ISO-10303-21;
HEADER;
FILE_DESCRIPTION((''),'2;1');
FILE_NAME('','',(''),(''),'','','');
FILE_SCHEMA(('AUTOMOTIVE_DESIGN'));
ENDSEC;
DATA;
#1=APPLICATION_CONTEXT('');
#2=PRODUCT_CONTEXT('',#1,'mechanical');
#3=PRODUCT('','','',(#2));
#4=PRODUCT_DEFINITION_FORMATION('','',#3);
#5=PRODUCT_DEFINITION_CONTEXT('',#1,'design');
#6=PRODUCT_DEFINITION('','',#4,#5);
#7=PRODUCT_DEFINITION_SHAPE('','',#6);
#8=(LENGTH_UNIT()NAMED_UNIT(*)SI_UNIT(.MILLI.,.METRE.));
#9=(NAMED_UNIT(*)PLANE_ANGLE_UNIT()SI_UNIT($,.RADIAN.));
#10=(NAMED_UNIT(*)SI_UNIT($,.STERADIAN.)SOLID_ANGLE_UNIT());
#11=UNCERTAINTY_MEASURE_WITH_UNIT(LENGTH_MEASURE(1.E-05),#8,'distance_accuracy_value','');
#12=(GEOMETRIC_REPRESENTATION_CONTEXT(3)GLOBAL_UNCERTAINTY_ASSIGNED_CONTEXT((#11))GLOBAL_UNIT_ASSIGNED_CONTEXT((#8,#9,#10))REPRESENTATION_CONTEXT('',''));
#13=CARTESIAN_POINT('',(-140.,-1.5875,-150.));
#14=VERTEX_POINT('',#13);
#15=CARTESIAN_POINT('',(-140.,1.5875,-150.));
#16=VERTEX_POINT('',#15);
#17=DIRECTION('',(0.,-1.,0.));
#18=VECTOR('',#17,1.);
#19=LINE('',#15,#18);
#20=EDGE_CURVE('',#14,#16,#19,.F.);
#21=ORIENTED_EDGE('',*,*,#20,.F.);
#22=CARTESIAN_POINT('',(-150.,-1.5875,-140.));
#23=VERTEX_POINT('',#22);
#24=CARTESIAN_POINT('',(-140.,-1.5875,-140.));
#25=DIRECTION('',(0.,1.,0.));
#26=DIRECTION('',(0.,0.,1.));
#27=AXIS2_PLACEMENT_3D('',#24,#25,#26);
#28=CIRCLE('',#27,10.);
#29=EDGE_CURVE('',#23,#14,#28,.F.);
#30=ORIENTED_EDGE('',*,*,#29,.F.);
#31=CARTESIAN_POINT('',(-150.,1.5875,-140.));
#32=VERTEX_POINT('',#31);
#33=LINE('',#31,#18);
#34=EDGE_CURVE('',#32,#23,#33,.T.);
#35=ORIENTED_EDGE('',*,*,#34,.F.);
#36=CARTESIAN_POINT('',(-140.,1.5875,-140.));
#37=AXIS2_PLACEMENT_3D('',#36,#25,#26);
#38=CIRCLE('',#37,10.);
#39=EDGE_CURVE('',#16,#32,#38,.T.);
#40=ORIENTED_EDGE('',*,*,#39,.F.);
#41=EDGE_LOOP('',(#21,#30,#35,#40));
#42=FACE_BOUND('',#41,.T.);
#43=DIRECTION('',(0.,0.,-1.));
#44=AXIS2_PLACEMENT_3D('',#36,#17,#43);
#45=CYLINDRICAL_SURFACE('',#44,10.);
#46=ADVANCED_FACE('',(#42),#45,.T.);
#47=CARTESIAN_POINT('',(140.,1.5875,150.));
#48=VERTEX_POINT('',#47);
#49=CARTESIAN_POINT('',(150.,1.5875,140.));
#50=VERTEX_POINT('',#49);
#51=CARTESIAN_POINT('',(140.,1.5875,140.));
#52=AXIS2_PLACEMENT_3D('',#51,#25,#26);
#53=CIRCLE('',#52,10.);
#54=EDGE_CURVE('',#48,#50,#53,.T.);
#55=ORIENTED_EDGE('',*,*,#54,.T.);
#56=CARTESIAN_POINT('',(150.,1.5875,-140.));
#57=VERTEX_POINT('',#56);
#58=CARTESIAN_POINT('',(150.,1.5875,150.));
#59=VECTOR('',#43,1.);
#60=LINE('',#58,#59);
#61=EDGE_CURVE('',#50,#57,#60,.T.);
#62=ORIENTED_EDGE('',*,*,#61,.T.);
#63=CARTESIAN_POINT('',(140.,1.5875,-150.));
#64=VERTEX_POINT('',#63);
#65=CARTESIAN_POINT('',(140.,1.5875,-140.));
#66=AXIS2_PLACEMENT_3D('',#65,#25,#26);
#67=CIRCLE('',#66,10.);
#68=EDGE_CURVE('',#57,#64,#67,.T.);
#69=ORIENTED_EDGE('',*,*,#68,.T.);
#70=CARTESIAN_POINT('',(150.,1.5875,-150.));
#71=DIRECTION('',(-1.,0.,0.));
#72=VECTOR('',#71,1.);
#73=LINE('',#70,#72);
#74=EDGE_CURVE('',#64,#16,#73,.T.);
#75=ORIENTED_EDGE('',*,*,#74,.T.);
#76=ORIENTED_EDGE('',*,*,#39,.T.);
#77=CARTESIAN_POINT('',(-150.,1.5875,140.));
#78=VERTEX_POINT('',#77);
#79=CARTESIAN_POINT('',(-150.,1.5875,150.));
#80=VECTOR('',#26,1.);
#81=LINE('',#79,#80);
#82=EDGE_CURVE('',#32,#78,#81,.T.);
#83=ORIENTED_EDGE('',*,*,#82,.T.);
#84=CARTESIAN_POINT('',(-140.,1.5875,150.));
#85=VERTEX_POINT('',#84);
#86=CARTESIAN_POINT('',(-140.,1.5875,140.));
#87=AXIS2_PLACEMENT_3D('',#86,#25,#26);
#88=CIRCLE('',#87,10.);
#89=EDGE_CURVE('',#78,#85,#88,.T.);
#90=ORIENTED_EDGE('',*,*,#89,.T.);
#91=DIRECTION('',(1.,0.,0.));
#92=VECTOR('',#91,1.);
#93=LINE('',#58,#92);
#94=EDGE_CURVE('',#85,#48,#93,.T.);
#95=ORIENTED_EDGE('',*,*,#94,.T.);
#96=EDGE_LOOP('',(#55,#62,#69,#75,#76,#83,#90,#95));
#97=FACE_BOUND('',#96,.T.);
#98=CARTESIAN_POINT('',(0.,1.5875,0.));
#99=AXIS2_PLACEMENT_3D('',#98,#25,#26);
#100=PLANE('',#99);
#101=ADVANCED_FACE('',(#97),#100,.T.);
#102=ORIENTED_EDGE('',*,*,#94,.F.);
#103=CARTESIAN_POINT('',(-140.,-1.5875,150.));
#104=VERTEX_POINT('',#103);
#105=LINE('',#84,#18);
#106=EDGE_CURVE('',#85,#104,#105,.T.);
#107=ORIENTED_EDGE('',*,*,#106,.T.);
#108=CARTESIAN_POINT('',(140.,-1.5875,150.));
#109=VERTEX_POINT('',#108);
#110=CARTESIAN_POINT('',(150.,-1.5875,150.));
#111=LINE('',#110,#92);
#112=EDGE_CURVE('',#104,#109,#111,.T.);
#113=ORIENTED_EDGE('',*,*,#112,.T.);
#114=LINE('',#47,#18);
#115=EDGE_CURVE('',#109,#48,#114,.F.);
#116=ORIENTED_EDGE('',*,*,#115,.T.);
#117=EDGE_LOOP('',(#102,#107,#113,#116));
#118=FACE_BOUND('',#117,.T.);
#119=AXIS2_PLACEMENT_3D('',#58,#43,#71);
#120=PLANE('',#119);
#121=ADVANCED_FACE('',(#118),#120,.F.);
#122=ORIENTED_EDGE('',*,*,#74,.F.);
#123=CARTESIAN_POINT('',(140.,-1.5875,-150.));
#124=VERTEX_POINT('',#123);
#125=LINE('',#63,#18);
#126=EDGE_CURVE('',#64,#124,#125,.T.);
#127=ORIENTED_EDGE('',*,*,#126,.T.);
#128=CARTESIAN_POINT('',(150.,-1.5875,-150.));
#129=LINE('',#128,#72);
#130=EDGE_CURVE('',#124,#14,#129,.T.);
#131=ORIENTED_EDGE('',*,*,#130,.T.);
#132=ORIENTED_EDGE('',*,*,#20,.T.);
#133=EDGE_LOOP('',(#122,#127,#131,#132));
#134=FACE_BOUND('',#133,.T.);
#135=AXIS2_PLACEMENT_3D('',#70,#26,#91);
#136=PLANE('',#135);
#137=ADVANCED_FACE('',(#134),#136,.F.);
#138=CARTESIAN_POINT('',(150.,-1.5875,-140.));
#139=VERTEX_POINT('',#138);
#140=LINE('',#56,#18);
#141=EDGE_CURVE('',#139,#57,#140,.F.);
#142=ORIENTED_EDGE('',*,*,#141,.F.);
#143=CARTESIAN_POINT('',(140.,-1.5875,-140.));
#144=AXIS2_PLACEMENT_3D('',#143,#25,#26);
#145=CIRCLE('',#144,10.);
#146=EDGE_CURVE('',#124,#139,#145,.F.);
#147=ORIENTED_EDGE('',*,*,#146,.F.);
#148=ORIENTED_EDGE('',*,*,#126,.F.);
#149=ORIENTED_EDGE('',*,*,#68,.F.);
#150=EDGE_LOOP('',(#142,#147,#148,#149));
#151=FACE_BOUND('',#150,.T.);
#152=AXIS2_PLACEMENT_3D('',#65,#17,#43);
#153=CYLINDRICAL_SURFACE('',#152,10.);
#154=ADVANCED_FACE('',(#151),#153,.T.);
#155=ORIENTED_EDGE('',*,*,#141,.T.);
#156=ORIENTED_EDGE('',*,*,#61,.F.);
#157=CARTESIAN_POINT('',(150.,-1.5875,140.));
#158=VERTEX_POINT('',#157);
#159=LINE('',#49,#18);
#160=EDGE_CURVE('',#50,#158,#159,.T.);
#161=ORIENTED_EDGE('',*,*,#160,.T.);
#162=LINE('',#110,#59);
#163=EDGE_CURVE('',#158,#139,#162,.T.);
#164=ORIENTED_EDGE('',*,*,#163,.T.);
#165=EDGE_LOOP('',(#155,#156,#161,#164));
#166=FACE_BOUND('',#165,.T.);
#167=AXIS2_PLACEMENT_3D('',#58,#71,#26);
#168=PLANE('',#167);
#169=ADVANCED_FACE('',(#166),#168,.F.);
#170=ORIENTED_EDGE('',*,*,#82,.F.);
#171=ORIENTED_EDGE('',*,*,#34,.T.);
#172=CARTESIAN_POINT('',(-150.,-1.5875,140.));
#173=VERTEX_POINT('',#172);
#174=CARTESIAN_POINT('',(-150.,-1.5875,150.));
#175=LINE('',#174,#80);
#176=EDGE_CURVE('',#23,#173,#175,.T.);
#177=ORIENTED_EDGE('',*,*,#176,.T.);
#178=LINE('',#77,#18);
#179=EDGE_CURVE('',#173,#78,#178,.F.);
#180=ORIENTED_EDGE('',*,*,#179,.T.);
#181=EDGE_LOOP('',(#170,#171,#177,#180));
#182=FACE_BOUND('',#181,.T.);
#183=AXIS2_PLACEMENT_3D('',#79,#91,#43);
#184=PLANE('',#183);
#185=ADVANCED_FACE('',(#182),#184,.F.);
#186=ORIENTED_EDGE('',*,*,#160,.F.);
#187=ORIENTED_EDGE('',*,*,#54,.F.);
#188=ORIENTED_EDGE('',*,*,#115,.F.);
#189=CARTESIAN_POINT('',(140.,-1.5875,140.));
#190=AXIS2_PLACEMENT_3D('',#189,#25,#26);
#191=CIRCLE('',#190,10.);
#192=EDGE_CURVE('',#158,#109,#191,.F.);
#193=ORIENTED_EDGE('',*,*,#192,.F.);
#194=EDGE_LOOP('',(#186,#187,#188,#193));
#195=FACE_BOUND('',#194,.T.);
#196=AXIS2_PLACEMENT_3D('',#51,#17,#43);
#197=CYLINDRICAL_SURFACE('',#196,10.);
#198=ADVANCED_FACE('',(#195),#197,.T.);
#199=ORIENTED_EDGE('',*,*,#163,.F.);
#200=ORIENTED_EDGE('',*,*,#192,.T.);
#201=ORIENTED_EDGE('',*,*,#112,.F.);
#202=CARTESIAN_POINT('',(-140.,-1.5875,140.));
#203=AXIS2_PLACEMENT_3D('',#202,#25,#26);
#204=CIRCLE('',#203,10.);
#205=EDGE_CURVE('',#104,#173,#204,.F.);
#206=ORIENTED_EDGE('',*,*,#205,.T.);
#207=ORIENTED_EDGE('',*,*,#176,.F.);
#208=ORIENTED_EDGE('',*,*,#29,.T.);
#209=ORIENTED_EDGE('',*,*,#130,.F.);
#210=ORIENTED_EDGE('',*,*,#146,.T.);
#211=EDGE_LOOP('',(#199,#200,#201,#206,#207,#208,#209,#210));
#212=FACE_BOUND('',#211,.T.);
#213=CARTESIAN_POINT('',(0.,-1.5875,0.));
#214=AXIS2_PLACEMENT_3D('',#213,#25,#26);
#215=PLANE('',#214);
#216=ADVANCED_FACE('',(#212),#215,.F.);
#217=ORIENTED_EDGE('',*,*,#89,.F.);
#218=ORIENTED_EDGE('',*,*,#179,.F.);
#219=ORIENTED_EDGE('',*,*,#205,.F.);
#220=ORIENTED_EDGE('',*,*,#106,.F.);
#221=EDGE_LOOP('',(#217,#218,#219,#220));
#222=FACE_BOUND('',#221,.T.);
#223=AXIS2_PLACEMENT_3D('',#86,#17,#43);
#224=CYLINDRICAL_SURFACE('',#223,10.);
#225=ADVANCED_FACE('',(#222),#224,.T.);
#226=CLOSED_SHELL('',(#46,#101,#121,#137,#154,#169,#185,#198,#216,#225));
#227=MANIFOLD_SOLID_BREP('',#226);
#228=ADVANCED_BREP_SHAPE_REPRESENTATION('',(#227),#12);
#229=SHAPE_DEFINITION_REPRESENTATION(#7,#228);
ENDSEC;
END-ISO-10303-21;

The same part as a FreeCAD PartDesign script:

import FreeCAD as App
import Part
import Sketcher
from FreeCAD import Vector


def edges_at(feature, points):
    """Names of the edges that pass closest to the given points."""
    edges = feature.Shape.Edges
    near = lambda p: min(range(len(edges)), key=lambda i: edges[i].distToShape(Part.Vertex(*p))[0])
    return sorted({f"Edge{near(p) + 1}" for p in points})


def add_polygon(sketch, points):
    """Adds a closed chain of lines whose ends are joined by coincident constraints."""
    first, n = sketch.GeometryCount, len(points)
    for a, b in zip(points, points[1:] + points[:1]):
        sketch.addGeometry(Part.LineSegment(App.Vector(*a, 0), App.Vector(*b, 0)), False)
    for i in range(n):
        sketch.addConstraint(Sketcher.Constraint("Coincident", first + i, 2, first + (i + 1) % n, 1))

doc = App.newDocument("Part")
body = doc.addObject("PartDesign::Body", "Body")

# Sketch on XZ plane
sketch1 = body.newObject("Sketcher::SketchObject", "Sketch")
sketch1.AttachmentSupport = (doc.getObject("XZ_Plane"), [""])
sketch1.MapMode = "FlatFace"
add_polygon(sketch1, [(-150, -150), (-150, 150), (150, 150), (150, -150)])  # lines 0-3
sketch1.addConstraint([
    Sketcher.Constraint("Vertical", 0),
    Sketcher.Constraint("Horizontal", 1),
    Sketcher.Constraint("Vertical", 2),
    Sketcher.Constraint("Horizontal", 3),
    Sketcher.Constraint("Symmetric", 0, 2, 2, 2, -1, 1),
    Sketcher.Constraint("Equal", 3, 0),
    Sketcher.Constraint("DistanceX", 1, 1, 1, 2, 300.0),
])
pad1 = body.newObject("PartDesign::Pad", "Pad")
pad1.Profile = sketch1
pad1.Length = 3.175
pad1.Midplane = True
doc.recompute()

fillet = body.newObject("PartDesign::Fillet", "Fillet")
fillet.Base = (pad1, edges_at(pad1, [
    (-150, 0, -150),
    (150, 0, -150),
    (150, 0, 150),
    (-150, 0, 150),
]))
fillet.Radius = 10

doc.recompute()
